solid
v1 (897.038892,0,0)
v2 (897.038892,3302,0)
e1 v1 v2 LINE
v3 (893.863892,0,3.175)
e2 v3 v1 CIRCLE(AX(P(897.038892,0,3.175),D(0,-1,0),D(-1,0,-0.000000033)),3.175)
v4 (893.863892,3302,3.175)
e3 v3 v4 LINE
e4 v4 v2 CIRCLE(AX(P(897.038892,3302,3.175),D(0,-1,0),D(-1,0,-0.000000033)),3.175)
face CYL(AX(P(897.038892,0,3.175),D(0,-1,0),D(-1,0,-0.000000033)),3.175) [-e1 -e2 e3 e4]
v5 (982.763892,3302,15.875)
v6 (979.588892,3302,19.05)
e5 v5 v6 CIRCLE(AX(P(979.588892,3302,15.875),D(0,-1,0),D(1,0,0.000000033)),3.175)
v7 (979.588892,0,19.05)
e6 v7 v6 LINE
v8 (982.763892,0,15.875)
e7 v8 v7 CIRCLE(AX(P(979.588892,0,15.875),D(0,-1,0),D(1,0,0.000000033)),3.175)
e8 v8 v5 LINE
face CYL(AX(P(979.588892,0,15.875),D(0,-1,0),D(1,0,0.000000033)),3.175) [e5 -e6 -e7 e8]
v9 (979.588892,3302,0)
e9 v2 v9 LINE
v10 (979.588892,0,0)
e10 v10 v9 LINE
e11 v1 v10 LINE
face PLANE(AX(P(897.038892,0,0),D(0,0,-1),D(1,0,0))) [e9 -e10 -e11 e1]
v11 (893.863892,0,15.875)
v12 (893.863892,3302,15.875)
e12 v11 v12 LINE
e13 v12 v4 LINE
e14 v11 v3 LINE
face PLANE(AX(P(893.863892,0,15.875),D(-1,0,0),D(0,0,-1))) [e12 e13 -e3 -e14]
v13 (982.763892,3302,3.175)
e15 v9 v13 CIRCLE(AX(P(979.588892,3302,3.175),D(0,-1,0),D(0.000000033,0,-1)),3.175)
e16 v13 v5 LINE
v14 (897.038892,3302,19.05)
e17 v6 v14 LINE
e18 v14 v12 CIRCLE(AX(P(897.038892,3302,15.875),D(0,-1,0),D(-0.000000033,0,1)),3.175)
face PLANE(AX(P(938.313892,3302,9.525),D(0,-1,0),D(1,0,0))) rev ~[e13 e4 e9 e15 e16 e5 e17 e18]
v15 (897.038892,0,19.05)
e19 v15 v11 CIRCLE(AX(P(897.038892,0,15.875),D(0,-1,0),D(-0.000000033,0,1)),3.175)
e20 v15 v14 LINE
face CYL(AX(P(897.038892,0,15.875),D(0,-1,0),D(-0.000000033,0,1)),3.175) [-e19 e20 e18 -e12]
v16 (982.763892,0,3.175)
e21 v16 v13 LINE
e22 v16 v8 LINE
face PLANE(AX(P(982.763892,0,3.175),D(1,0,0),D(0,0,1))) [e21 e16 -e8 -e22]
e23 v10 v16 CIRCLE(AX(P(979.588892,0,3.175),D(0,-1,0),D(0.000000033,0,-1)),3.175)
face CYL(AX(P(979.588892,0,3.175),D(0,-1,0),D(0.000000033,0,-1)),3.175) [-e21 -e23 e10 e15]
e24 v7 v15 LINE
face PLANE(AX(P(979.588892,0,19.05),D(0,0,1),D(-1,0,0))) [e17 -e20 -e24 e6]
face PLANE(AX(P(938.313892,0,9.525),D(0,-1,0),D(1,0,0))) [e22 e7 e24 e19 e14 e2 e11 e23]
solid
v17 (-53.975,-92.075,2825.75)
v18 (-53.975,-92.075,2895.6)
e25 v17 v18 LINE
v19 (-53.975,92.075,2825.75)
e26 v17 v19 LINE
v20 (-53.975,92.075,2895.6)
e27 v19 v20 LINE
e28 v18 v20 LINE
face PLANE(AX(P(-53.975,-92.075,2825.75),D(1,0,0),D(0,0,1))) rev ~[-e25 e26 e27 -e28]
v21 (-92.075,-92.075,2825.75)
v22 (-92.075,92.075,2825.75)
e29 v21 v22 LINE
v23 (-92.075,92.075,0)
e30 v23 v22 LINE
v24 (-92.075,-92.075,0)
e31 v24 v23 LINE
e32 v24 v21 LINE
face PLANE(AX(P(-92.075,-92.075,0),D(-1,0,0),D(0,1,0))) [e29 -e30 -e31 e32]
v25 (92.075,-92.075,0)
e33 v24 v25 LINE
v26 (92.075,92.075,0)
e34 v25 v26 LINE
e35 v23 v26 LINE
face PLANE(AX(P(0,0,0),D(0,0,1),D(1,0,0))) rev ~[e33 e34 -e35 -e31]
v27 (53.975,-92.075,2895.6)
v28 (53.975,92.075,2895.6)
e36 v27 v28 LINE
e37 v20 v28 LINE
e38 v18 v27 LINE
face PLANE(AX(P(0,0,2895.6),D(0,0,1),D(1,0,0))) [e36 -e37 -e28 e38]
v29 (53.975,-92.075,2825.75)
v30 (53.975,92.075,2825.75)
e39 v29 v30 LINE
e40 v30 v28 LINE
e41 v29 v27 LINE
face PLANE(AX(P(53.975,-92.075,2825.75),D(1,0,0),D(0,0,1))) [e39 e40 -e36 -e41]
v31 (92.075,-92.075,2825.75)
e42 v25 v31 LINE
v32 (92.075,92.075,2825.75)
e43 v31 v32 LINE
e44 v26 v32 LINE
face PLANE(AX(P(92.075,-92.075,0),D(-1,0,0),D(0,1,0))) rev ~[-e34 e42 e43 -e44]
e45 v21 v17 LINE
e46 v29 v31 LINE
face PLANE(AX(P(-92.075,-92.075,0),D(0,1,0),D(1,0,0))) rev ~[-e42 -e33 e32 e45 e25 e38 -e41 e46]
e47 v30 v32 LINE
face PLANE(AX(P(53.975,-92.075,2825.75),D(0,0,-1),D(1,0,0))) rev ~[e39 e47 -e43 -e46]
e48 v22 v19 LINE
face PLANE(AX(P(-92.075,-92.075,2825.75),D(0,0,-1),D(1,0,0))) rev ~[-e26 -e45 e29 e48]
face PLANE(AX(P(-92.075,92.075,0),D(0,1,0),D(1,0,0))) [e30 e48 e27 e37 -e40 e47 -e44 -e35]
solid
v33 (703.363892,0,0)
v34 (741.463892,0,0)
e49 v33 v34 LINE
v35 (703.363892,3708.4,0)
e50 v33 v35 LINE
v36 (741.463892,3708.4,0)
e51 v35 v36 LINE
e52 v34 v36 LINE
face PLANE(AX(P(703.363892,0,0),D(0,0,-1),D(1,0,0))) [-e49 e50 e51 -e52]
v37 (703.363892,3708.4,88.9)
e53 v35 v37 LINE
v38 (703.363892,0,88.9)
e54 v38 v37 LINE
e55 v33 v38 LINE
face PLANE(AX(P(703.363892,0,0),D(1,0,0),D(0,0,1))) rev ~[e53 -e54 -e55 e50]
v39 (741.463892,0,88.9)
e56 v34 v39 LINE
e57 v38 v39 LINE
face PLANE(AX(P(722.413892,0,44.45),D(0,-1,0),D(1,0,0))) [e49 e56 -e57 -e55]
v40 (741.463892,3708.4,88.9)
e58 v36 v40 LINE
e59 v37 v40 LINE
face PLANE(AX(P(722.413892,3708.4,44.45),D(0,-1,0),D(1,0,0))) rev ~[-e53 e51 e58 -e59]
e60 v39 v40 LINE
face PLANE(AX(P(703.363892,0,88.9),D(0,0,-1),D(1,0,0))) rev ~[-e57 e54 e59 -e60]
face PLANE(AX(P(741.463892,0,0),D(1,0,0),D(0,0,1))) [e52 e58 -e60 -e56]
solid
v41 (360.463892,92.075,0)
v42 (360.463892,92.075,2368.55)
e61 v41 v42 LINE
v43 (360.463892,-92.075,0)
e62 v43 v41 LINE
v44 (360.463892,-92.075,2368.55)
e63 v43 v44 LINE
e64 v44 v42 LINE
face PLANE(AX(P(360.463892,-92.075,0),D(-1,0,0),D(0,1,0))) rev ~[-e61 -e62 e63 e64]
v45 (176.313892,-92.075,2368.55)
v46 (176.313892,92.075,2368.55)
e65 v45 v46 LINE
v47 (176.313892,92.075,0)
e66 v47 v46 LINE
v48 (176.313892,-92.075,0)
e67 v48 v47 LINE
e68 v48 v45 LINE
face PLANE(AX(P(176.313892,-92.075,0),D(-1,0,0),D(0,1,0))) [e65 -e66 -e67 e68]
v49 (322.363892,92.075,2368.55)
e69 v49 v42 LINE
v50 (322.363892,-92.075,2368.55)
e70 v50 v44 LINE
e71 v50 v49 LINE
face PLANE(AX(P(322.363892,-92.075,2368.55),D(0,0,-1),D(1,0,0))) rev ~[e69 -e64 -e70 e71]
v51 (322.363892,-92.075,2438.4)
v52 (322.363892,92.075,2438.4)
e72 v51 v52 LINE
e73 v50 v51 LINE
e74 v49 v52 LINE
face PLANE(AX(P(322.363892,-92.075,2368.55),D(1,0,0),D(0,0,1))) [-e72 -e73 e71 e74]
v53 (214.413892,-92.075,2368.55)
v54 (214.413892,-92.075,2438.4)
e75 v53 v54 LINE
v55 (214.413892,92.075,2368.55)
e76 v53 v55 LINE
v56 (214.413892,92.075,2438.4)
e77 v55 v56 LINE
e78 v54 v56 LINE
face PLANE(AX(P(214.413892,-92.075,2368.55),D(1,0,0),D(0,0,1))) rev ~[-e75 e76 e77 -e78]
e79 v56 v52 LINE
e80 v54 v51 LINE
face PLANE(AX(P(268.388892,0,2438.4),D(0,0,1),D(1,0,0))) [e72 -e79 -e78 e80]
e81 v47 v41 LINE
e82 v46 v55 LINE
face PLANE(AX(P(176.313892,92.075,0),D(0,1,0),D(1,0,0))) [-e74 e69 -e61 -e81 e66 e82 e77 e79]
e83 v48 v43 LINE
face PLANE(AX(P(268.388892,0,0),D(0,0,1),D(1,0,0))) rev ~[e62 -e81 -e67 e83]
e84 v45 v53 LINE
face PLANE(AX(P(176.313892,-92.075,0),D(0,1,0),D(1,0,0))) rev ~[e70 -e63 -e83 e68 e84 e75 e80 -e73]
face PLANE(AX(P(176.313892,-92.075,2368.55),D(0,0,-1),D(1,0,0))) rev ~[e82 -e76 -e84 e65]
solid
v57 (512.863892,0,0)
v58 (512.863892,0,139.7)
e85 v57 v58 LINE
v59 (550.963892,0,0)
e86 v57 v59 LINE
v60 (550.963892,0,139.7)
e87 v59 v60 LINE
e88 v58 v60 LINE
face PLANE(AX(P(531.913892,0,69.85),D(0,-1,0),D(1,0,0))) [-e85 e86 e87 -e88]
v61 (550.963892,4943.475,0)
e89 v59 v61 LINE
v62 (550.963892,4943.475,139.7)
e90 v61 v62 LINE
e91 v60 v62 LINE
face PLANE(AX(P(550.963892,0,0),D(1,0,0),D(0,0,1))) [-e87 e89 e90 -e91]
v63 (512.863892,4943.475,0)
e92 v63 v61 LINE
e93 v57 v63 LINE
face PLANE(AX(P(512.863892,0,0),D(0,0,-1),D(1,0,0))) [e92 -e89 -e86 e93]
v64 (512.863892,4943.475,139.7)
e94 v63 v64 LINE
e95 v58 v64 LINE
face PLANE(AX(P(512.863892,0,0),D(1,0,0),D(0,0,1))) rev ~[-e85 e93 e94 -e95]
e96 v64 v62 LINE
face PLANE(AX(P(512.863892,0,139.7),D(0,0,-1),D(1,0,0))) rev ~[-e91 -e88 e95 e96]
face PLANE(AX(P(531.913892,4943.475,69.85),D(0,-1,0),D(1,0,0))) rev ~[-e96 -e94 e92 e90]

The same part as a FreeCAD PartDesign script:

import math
import FreeCAD as App
import Part
import Sketcher
Q = App.Units.Quantity

doc = App.newDocument("Part")
body = doc.addObject("PartDesign::Body", "Body")

sketch1 = body.newObject("Sketcher::SketchObject", "Sketch")
sketch1.AttachmentSupport = (doc.getObject("XY_Plane"), [""])
sketch1.MapMode = "FlatFace"
sketch1.addGeometry([
    Part.LineSegment(App.Vector(-92, 92, 0), App.Vector(-92, -92, 0)),
    Part.LineSegment(App.Vector(-92, -92, 0), App.Vector(92, -92, 0)),
    Part.LineSegment(App.Vector(92, -92, 0), App.Vector(92, 92, 0)),
    Part.LineSegment(App.Vector(92, 92, 0), App.Vector(-92, 92, 0)),
], False)
sketch1.addConstraint([
    Sketcher.Constraint("Coincident", 0, 2, 1, 1),
    Sketcher.Constraint("Coincident", 1, 2, 2, 1),
    Sketcher.Constraint("Coincident", 2, 2, 3, 1),
    Sketcher.Constraint("Coincident", 3, 2, 0, 1),
    Sketcher.Constraint("Vertical", 0),
    Sketcher.Constraint("Horizontal", 1),
    Sketcher.Constraint("Vertical", 2),
    Sketcher.Constraint("Horizontal", 3),
    Sketcher.Constraint("Symmetric", 0, 2, 2, 2, -1, 1),
    Sketcher.Constraint("Equal", 3, 0),
    Sketcher.Constraint("DistanceX", 1, 1, 1, 2, Q("7.25 in")),
])
pad1 = body.newObject("PartDesign::Pad", "Pad")
pad1.Profile = sketch1
pad1.Length = Q("114 in")

sketch2 = body.newObject("Sketcher::SketchObject", "Sketch001")
sketch2.AttachmentSupport = (doc.getObject("XZ_Plane"), [""])
sketch2.MapMode = "FlatFace"
sketch2.AttachmentOffset = App.Placement(App.Vector(0, 0, 3.625 * 25.4), App.Rotation())
sketch2.addGeometry([
    Part.LineSegment(App.Vector(-92, 2896, 0), App.Vector(-92, 2826, 0)),
    Part.LineSegment(App.Vector(-92, 2826, 0), App.Vector(-54, 2826, 0)),
    Part.LineSegment(App.Vector(-54, 2826, 0), App.Vector(-54, 2896, 0)),
    Part.LineSegment(App.Vector(-54, 2896, 0), App.Vector(-92, 2896, 0)),
    Part.LineSegment(App.Vector(54, 2896, 0), App.Vector(54, 2826, 0)),
    Part.LineSegment(App.Vector(54, 2826, 0), App.Vector(92, 2826, 0)),
    Part.LineSegment(App.Vector(92, 2826, 0), App.Vector(92, 2896, 0)),
    Part.LineSegment(App.Vector(92, 2896, 0), App.Vector(54, 2896, 0)),
], False)
sketch2.addConstraint([
    Sketcher.Constraint("Coincident", 0, 2, 1, 1),
    Sketcher.Constraint("Coincident", 1, 2, 2, 1),
    Sketcher.Constraint("Coincident", 2, 2, 3, 1),
    Sketcher.Constraint("Coincident", 3, 2, 0, 1),
    Sketcher.Constraint("Coincident", 4, 2, 5, 1),
    Sketcher.Constraint("Coincident", 5, 2, 6, 1),
    Sketcher.Constraint("Coincident", 6, 2, 7, 1),
    Sketcher.Constraint("Coincident", 7, 2, 4, 1),
    Sketcher.Constraint("Vertical", 0),
    Sketcher.Constraint("Horizontal", 1),
    Sketcher.Constraint("Vertical", 2),
    Sketcher.Constraint("Horizontal", 3),
    Sketcher.Constraint("Vertical", 4),
    Sketcher.Constraint("Horizontal", 5),
    Sketcher.Constraint("Vertical", 6),
    Sketcher.Constraint("Horizontal", 7),
    Sketcher.Constraint("Symmetric", 1, 2, 4, 2, -2),
    Sketcher.Constraint("Symmetric", 3, 2, 6, 2, -2),
    Sketcher.Constraint("DistanceX", 1, 1, 1, 2, Q("1.5 in")),
    Sketcher.Constraint("DistanceY", -1, 1, 2, 2, Q("114 in")),
    Sketcher.Constraint("DistanceY", 0, 2, 0, 1, Q("2.75 in")),
    Sketcher.Constraint("DistanceX", 1, 2, 4, 2, Q("4.25 in")),
])
pocket1 = body.newObject("PartDesign::Pocket", "Pocket")
pocket1.Profile = sketch2
pocket1.Type = "ThroughAll"
body2 = doc.addObject("PartDesign::Body", "Body001")

sketch3 = body2.newObject("Sketcher::SketchObject", "Sketch002")
sketch3.AttachmentSupport = (doc.getObject("XY_Plane001"), [""])
sketch3.MapMode = "FlatFace"
sketch3.addGeometry([
    Part.LineSegment(App.Vector(176, 92, 0), App.Vector(176, -92, 0)),
    Part.LineSegment(App.Vector(176, -92, 0), App.Vector(360, -92, 0)),
    Part.LineSegment(App.Vector(360, -92, 0), App.Vector(360, 92, 0)),
    Part.LineSegment(App.Vector(360, 92, 0), App.Vector(176, 92, 0)),
], False)
sketch3.addConstraint([
    Sketcher.Constraint("Coincident", 0, 2, 1, 1),
    Sketcher.Constraint("Coincident", 1, 2, 2, 1),
    Sketcher.Constraint("Coincident", 2, 2, 3, 1),
    Sketcher.Constraint("Coincident", 3, 2, 0, 1),
    Sketcher.Constraint("Vertical", 0),
    Sketcher.Constraint("Horizontal", 1),
    Sketcher.Constraint("Vertical", 2),
    Sketcher.Constraint("Horizontal", 3),
    Sketcher.Constraint("Equal", 3, 0),
    Sketcher.Constraint("DistanceX", 1, 1, 1, 2, Q("7.25 in")),
    Sketcher.Constraint("DistanceY", 0, 2, -1, 1, Q("3.625 in")),
    Sketcher.Constraint("DistanceX", -1, 1, 1, 2, 360.463892),
])
pad2 = body2.newObject("PartDesign::Pad", "Pad001")
pad2.Profile = sketch3
pad2.Length = Q("96 in")

sketch4 = body2.newObject("Sketcher::SketchObject", "Sketch003")
sketch4.AttachmentSupport = (doc.getObject("XZ_Plane001"), [""])
sketch4.MapMode = "FlatFace"
sketch4.AttachmentOffset = App.Placement(App.Vector(0, 0, 3.625 * 25.4), App.Rotation())
sketch4.addGeometry([
    Part.LineSegment(App.Vector(322, 2438, 0), App.Vector(322, 2369, 0)),
    Part.LineSegment(App.Vector(322, 2369, 0), App.Vector(360, 2369, 0)),
    Part.LineSegment(App.Vector(360, 2369, 0), App.Vector(360, 2438, 0)),
    Part.LineSegment(App.Vector(360, 2438, 0), App.Vector(322, 2438, 0)),
    Part.LineSegment(App.Vector(176, 2438, 0), App.Vector(176, 2369, 0)),
    Part.LineSegment(App.Vector(176, 2369, 0), App.Vector(214, 2369, 0)),
    Part.LineSegment(App.Vector(214, 2369, 0), App.Vector(214, 2438, 0)),
    Part.LineSegment(App.Vector(214, 2438, 0), App.Vector(176, 2438, 0)),
], False)
sketch4.addConstraint([
    Sketcher.Constraint("Coincident", 0, 2, 1, 1),
    Sketcher.Constraint("Coincident", 1, 2, 2, 1),
    Sketcher.Constraint("Coincident", 2, 2, 3, 1),
    Sketcher.Constraint("Coincident", 3, 2, 0, 1),
    Sketcher.Constraint("Coincident", 4, 2, 5, 1),
    Sketcher.Constraint("Coincident", 5, 2, 6, 1),
    Sketcher.Constraint("Coincident", 6, 2, 7, 1),
    Sketcher.Constraint("Coincident", 7, 2, 4, 1),
    Sketcher.Constraint("Vertical", 0),
    Sketcher.Constraint("Horizontal", 1),
    Sketcher.Constraint("Vertical", 2),
    Sketcher.Constraint("Horizontal", 3),
    Sketcher.Constraint("Vertical", 4),
    Sketcher.Constraint("Horizontal", 5),
    Sketcher.Constraint("Vertical", 6),
    Sketcher.Constraint("Horizontal", 7),
    Sketcher.Constraint("Horizontal", 1, 2, 4, 2),
    Sketcher.Constraint("Horizontal", 3, 2, 6, 2),
    Sketcher.Constraint("Equal", 3, 5),
    Sketcher.Constraint("DistanceX", 1, 1, 1, 2, Q("1.5 in")),
    Sketcher.Constraint("DistanceY", -1, 1, 2, 2, Q("96 in")),
    Sketcher.Constraint("DistanceY", 0, 2, 0, 1, Q("2.75 in")),
    Sketcher.Constraint("DistanceX", 4, 2, 0, 2, Q("5.75 in")),
    Sketcher.Constraint("DistanceX", -1, 1, 0, 2, 322.363892),
])
pocket2 = body2.newObject("PartDesign::Pocket", "Pocket001")
pocket2.Profile = sketch4
pocket2.Type = "ThroughAll"
body3 = doc.addObject("PartDesign::Body", "Body002")

sketch5 = body3.newObject("Sketcher::SketchObject", "Sketch004")
sketch5.AttachmentSupport = (doc.getObject("XZ_Plane002"), [""])
sketch5.MapMode = "FlatFace"
sketch5.addGeometry([
    Part.LineSegment(App.Vector(513, 140, 0), App.Vector(513, 0, 0)),
    Part.LineSegment(App.Vector(513, 0, 0), App.Vector(551, 0, 0)),
    Part.LineSegment(App.Vector(551, 0, 0), App.Vector(551, 140, 0)),
    Part.LineSegment(App.Vector(551, 140, 0), App.Vector(513, 140, 0)),
], False)
sketch5.addConstraint([
    Sketcher.Constraint("Coincident", 0, 2, 1, 1),
    Sketcher.Constraint("Coincident", 1, 2, 2, 1),
    Sketcher.Constraint("Coincident", 2, 2, 3, 1),
    Sketcher.Constraint("Coincident", 3, 2, 0, 1),
    Sketcher.Constraint("Vertical", 0),
    Sketcher.Constraint("Horizontal", 1),
    Sketcher.Constraint("Vertical", 2),
    Sketcher.Constraint("Horizontal", 3),
    Sketcher.Constraint("PointOnObject", 0, 2, -1),
    Sketcher.Constraint("DistanceX", 1, 1, 1, 2, Q("1.5 in")),
    Sketcher.Constraint("DistanceY", 0, 2, 0, 1, Q("5.5 in")),
    Sketcher.Constraint("DistanceX", -1, 1, 0, 2, 512.863892),
])
pad3 = body3.newObject("PartDesign::Pad", "Pad002")
pad3.Profile = sketch5
pad3.Length = Q("194.625 in")
pad3.Reversed = True
body4 = doc.addObject("PartDesign::Body", "Body003")

sketch6 = body4.newObject("Sketcher::SketchObject", "Sketch005")
sketch6.AttachmentSupport = (doc.getObject("XZ_Plane003"), [""])
sketch6.MapMode = "FlatFace"
sketch6.addGeometry([
    Part.LineSegment(App.Vector(703, 89, 0), App.Vector(703, 0, 0)),
    Part.LineSegment(App.Vector(703, 0, 0), App.Vector(741, 0, 0)),
    Part.LineSegment(App.Vector(741, 0, 0), App.Vector(741, 89, 0)),
    Part.LineSegment(App.Vector(741, 89, 0), App.Vector(703, 89, 0)),
], False)
sketch6.addConstraint([
    Sketcher.Constraint("Coincident", 0, 2, 1, 1),
    Sketcher.Constraint("Coincident", 1, 2, 2, 1),
    Sketcher.Constraint("Coincident", 2, 2, 3, 1),
    Sketcher.Constraint("Coincident", 3, 2, 0, 1),
    Sketcher.Constraint("Vertical", 0),
    Sketcher.Constraint("Horizontal", 1),
    Sketcher.Constraint("Vertical", 2),
    Sketcher.Constraint("Horizontal", 3),
    Sketcher.Constraint("PointOnObject", 0, 2, -1),
    Sketcher.Constraint("DistanceX", 1, 1, 1, 2, Q("1.5 in")),
    Sketcher.Constraint("DistanceY", 0, 2, 0, 1, Q("3.5 in")),
    Sketcher.Constraint("DistanceX", -1, 1, 0, 2, 703.363892),
])
pad4 = body4.newObject("PartDesign::Pad", "Pad003")
pad4.Profile = sketch6
pad4.Length = Q("146 in")
pad4.Reversed = True
body5 = doc.addObject("PartDesign::Body", "Body004")

sketch7 = body5.newObject("Sketcher::SketchObject", "Sketch006")
sketch7.AttachmentSupport = (doc.getObject("XZ_Plane004"), [""])
sketch7.MapMode = "FlatFace"
sketch7.addGeometry([
    Part.ArcOfCircle(Part.Circle(App.Vector(897, 3.2, 0), App.Vector(0, 0, 1), 3.2), math.radians(-180), math.radians(-90)),
    Part.LineSegment(App.Vector(897, 0, 0), App.Vector(979.6, 0, 0)),
    Part.ArcOfCircle(Part.Circle(App.Vector(979.6, 3.2, 0), App.Vector(0, 0, 1), 3.2), math.radians(-90), math.radians(0)),
    Part.LineSegment(App.Vector(982.8, 3.2, 0), App.Vector(982.8, 15.9, 0)),
    Part.ArcOfCircle(Part.Circle(App.Vector(979.6, 15.9, 0), App.Vector(0, 0, 1), 3.2), math.radians(0), math.radians(90)),
    Part.LineSegment(App.Vector(979.6, 19.1, 0), App.Vector(897, 19.1, 0)),
    Part.ArcOfCircle(Part.Circle(App.Vector(897, 15.9, 0), App.Vector(0, 0, 1), 3.2), math.radians(90), math.radians(180)),
    Part.LineSegment(App.Vector(893.9, 15.9, 0), App.Vector(893.9, 3.2, 0)),
], False)
sketch7.addConstraint([
    Sketcher.Constraint("Tangent", 0, 2, 1, 1),
    Sketcher.Constraint("Tangent", 1, 2, 2, 1),
    Sketcher.Constraint("Tangent", 2, 2, 3, 1),
    Sketcher.Constraint("Tangent", 3, 2, 4, 1),
    Sketcher.Constraint("Tangent", 4, 2, 5, 1),
    Sketcher.Constraint("Tangent", 5, 2, 6, 1),
    Sketcher.Constraint("Tangent", 6, 2, 7, 1),
    Sketcher.Constraint("Tangent", 7, 2, 0, 1),
    Sketcher.Constraint("Horizontal", 1),
    Sketcher.Constraint("Vertical", 3),
    Sketcher.Constraint("Horizontal", 5),
    Sketcher.Constraint("Vertical", 7),
    Sketcher.Constraint("Equal", 0, 2),
    Sketcher.Constraint("Equal", 2, 4),
    Sketcher.Constraint("Equal", 4, 6),
    Sketcher.Constraint("PointOnObject", 0, 2, -1),
    Sketcher.Constraint("DistanceY", 3, 1, 3, 2, Q("0.5 in")),
    Sketcher.Constraint("Radius", 0, Q("0.125 in")),
    Sketcher.Constraint("DistanceX", 1, 1, 1, 2, Q("3.25 in")),
    Sketcher.Constraint("DistanceX", -1, 1, 2, 3, 979.588892),
])
pad5 = body5.newObject("PartDesign::Pad", "Pad004")
pad5.Profile = sketch7
pad5.Length = Q("130 in")
pad5.Reversed = True

doc.recompute()
